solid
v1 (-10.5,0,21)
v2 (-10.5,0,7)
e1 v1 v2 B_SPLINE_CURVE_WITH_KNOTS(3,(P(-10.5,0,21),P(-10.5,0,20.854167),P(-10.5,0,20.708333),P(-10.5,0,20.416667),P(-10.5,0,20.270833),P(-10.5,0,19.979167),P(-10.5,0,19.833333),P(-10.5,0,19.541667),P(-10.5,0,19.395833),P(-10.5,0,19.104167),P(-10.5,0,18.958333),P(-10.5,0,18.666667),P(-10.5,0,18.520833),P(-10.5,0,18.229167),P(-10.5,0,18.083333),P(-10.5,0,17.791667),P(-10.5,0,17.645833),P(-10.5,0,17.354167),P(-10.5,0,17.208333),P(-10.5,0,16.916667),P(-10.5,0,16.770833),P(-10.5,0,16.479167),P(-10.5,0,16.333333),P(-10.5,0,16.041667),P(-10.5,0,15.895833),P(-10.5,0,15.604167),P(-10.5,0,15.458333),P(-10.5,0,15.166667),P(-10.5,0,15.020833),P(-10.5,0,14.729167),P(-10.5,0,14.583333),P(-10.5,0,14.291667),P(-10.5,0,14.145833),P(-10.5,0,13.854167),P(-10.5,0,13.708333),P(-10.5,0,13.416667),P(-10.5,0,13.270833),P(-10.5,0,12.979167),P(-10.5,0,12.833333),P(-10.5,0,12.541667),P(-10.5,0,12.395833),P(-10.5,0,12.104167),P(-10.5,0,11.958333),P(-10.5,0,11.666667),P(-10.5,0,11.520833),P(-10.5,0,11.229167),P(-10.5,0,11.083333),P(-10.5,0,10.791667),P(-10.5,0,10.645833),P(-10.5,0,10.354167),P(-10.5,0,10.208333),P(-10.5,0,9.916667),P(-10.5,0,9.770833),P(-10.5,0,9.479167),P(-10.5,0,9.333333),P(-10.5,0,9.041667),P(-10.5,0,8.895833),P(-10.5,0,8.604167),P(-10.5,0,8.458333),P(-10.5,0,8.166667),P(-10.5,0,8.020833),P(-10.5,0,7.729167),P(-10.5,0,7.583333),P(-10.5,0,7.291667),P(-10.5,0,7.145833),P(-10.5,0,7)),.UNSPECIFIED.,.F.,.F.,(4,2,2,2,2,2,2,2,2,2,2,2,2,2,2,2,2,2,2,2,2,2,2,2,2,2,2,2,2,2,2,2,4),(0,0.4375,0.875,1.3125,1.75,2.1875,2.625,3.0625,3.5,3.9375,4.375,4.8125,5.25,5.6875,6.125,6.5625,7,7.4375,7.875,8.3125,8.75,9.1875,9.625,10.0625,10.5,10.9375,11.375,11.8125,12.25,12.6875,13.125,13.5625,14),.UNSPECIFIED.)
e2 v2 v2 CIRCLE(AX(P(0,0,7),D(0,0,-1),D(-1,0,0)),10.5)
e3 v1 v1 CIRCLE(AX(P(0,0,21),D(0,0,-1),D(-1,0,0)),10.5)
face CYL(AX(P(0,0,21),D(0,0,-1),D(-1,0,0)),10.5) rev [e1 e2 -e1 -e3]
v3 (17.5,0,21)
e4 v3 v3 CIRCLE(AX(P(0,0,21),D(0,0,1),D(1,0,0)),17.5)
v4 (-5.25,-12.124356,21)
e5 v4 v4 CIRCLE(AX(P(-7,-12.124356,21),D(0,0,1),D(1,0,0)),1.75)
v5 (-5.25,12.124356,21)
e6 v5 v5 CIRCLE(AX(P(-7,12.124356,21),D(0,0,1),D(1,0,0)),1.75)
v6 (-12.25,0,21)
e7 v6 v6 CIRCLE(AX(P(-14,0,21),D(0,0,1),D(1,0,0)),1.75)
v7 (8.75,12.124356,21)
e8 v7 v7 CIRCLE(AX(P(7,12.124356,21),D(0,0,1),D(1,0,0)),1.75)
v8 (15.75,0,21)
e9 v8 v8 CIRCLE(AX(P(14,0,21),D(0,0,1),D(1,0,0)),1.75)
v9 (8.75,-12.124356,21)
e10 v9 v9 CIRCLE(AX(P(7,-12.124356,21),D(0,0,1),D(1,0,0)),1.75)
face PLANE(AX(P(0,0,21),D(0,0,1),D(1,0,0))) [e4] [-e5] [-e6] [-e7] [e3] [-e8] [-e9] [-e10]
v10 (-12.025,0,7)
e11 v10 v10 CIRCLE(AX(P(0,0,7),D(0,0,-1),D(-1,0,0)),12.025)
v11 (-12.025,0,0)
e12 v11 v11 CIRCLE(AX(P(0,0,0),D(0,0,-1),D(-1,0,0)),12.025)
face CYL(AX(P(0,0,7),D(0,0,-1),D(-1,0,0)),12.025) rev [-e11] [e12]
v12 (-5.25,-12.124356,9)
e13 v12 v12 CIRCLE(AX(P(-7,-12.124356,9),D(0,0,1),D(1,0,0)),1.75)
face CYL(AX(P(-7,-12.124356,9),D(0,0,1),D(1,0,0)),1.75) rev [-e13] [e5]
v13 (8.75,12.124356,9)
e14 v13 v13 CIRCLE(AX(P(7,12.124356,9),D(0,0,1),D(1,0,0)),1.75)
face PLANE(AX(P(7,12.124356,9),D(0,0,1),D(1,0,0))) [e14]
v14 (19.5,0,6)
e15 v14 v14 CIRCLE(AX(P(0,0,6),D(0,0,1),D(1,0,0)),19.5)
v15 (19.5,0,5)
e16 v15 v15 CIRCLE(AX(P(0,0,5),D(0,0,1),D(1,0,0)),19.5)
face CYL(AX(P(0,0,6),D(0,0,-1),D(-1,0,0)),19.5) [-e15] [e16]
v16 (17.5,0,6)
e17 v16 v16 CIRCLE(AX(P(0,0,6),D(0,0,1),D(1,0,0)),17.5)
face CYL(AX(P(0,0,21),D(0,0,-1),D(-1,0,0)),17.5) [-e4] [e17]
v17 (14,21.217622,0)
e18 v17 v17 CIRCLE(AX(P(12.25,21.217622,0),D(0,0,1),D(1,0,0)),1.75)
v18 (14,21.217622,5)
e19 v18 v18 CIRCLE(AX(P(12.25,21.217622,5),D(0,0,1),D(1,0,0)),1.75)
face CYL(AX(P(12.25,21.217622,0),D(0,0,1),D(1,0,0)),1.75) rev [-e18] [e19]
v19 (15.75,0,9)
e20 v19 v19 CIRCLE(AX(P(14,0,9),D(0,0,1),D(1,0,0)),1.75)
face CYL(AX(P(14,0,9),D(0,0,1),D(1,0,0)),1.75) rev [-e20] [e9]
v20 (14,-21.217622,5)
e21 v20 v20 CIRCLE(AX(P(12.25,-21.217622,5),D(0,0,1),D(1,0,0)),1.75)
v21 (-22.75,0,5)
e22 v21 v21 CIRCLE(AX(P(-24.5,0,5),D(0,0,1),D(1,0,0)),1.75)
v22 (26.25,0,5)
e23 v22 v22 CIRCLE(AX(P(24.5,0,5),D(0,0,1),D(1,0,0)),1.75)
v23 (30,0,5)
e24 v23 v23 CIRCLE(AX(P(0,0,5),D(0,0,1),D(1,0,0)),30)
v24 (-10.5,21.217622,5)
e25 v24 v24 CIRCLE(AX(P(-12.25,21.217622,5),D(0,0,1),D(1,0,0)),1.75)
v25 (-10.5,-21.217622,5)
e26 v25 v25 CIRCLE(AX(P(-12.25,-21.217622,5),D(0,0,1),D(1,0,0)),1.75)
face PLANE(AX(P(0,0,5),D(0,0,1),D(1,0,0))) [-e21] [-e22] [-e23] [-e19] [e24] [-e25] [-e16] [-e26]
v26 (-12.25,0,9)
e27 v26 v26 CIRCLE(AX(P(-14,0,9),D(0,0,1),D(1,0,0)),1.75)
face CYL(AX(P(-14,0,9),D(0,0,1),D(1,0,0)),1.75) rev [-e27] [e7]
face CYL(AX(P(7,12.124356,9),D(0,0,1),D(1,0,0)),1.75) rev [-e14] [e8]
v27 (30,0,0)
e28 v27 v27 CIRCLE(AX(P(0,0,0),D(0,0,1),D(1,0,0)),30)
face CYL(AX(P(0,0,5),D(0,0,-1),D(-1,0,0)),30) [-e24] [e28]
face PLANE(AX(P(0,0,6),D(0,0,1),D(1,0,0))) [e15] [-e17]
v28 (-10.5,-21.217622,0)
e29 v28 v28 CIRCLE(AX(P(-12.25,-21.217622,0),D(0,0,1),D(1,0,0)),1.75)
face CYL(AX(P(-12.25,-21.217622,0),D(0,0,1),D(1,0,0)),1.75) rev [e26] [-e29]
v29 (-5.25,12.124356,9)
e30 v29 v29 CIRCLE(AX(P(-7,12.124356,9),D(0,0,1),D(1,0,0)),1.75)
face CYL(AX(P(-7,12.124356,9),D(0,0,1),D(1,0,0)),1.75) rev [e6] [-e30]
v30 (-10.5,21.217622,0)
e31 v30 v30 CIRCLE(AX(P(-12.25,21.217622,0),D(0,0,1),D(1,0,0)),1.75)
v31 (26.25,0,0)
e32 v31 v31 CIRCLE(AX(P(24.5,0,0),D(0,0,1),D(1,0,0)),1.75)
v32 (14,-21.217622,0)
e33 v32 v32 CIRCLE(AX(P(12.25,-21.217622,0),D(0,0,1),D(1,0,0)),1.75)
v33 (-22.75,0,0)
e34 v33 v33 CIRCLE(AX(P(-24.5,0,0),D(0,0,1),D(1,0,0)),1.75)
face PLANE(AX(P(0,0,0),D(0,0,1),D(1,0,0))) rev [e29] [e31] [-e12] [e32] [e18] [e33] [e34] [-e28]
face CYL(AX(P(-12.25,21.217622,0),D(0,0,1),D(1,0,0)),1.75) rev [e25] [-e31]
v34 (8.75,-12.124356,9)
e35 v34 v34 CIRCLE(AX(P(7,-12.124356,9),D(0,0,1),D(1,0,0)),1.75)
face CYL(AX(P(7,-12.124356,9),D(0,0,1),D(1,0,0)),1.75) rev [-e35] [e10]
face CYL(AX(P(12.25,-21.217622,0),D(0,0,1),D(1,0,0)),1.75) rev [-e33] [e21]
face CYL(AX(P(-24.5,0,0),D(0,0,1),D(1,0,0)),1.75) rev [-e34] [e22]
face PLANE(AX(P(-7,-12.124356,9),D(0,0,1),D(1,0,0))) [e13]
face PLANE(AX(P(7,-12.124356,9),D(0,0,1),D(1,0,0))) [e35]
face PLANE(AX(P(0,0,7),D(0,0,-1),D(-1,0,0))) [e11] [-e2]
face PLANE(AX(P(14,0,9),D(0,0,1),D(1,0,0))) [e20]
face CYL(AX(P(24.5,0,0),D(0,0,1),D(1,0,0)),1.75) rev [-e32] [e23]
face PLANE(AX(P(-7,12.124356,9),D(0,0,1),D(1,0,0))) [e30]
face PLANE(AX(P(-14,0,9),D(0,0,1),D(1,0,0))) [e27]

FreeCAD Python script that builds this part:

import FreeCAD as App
import Part
import Sketcher
from FreeCAD import Vector

doc = App.newDocument("Part")
body = doc.addObject("PartDesign::Body", "Body")

# Sketch on XY plane
sketch1 = body.newObject("Sketcher::SketchObject", "Sketch")
sketch1.AttachmentSupport = (doc.getObject("XY_Plane"), [""])
sketch1.MapMode = "FlatFace"
sketch1.addGeometry(Part.Circle(Vector(0, 0, 0), Vector(0, 0, 1), 30), False)
sketch1.addConstraint(Sketcher.Constraint("Coincident", 0, 3, -1, 1))
sketch1.addConstraint(Sketcher.Constraint("Diameter", 0, 60.0))
pad1 = body.newObject("PartDesign::Pad", "Pad")
pad1.Profile = sketch1
pad1.Length = 5

# Sketch on XY plane
sketch2 = body.newObject("Sketcher::SketchObject", "Sketch001")
sketch2.AttachmentSupport = (doc.getObject("XY_Plane"), [""])
sketch2.MapMode = "FlatFace"
sketch2.AttachmentOffset = App.Placement(Vector(0, 0, 5), App.Rotation())
sketch2.addGeometry(Part.Circle(Vector(0, 0, 0), Vector(0, 0, 1), 20), False)
sketch2.addConstraint(Sketcher.Constraint("Coincident", 0, 3, -1, 1))
sketch2.addConstraint(Sketcher.Constraint("Diameter", 0, 39.0))
pad2 = body.newObject("PartDesign::Pad", "Pad001")
pad2.Profile = sketch2
pad2.Length = 1

# Sketch on XY plane
sketch3 = body.newObject("Sketcher::SketchObject", "Sketch002")
sketch3.AttachmentSupport = (doc.getObject("XY_Plane"), [""])
sketch3.MapMode = "FlatFace"
sketch3.AttachmentOffset = App.Placement(Vector(0, 0, 6), App.Rotation())
sketch3.addGeometry(Part.Circle(Vector(0, 0, 0), Vector(0, 0, 1), 18), False)
sketch3.addConstraint(Sketcher.Constraint("Coincident", 0, 3, -1, 1))
sketch3.addConstraint(Sketcher.Constraint("Diameter", 0, 35.0))
pad3 = body.newObject("PartDesign::Pad", "Pad002")
pad3.Profile = sketch3
pad3.Length = 15

# Sketch on XY plane
sketch4 = body.newObject("Sketcher::SketchObject", "Sketch003")
sketch4.AttachmentSupport = (doc.getObject("XY_Plane"), [""])
sketch4.MapMode = "FlatFace"
sketch4.addGeometry(Part.Circle(Vector(0, 0, 0), Vector(0, 0, 1), 12), False)
sketch4.addConstraint(Sketcher.Constraint("Coincident", 0, 3, -1, 1))
sketch4.addConstraint(Sketcher.Constraint("Diameter", 0, 24.05))
pocket1 = body.newObject("PartDesign::Pocket", "Pocket")
pocket1.Profile = sketch4
pocket1.Length = 7
pocket1.Reversed = True

# Sketch on XY plane
sketch5 = body.newObject("Sketcher::SketchObject", "Sketch004")
sketch5.AttachmentSupport = (doc.getObject("XY_Plane"), [""])
sketch5.MapMode = "FlatFace"
sketch5.AttachmentOffset = App.Placement(Vector(0, 0, 7), App.Rotation())
sketch5.addGeometry(Part.Circle(Vector(0, 0, 0), Vector(0, 0, 1), 10), False)
sketch5.addConstraint(Sketcher.Constraint("Coincident", 0, 3, -1, 1))
sketch5.addConstraint(Sketcher.Constraint("Diameter", 0, 21.0))
pocket2 = body.newObject("PartDesign::Pocket", "Pocket001")
pocket2.Profile = sketch5
pocket2.Type = "ThroughAll"
pocket2.Reversed = True

# Sketch on XY plane
sketch6 = body.newObject("Sketcher::SketchObject", "Sketch005")
sketch6.AttachmentSupport = (doc.getObject("XY_Plane"), [""])
sketch6.MapMode = "FlatFace"
sketch6.AttachmentOffset = App.Placement(Vector(0, 0, 5), App.Rotation())
sketch6.addGeometry(Part.Circle(Vector(24.5, 0, 0), Vector(0, 0, 1), 1.8), False)
sketch6.addGeometry(Part.Circle(Vector(12.2, -21.2, 0), Vector(0, 0, 1), 1.8), False)
sketch6.addGeometry(Part.Circle(Vector(-12.2, -21.2, 0), Vector(0, 0, 1), 1.8), False)
sketch6.addGeometry(Part.Circle(Vector(-24.5, 0, 0), Vector(0, 0, 1), 1.8), False)
sketch6.addGeometry(Part.Circle(Vector(-12.2, 21.2, 0), Vector(0, 0, 1), 1.8), False)
sketch6.addGeometry(Part.Circle(Vector(12.2, 21.2, 0), Vector(0, 0, 1), 1.8), False)
sketch6.addConstraint(Sketcher.Constraint("Equal", 0, 1))
sketch6.addConstraint(Sketcher.Constraint("Equal", 1, 2))
sketch6.addConstraint(Sketcher.Constraint("Equal", 2, 3))
sketch6.addConstraint(Sketcher.Constraint("Equal", 3, 4))
sketch6.addConstraint(Sketcher.Constraint("Equal", 4, 5))
sketch6.addConstraint(Sketcher.Constraint("Symmetric", 0, 3, 3, 3, -1, 1))
sketch6.addConstraint(Sketcher.Constraint("Symmetric", 1, 3, 4, 3, -1, 1))
sketch6.addConstraint(Sketcher.Constraint("Symmetric", 2, 3, 5, 3, -1, 1))
sketch6.addConstraint(Sketcher.Constraint("Symmetric", 1, 3, 2, 3, -2))
sketch6.addConstraint(Sketcher.Constraint("PointOnObject", 0, 3, -1))
sketch6.addConstraint(Sketcher.Constraint("Diameter", 0, 3.5))
sketch6.addConstraint(Sketcher.Constraint("DistanceX", 3, 3, 0, 3, 49.0))
sketch6.addConstraint(Sketcher.Constraint("DistanceX", 2, 3, 1, 3, 24.5))
sketch6.addConstraint(Sketcher.Constraint("DistanceY", 1, 3, -1, 1, 21.217622))
pocket3 = body.newObject("PartDesign::Pocket", "Pocket002")
pocket3.Profile = sketch6
pocket3.Type = "ThroughAll"

# Sketch on XY plane
sketch7 = body.newObject("Sketcher::SketchObject", "Sketch006")
sketch7.AttachmentSupport = (doc.getObject("XY_Plane"), [""])
sketch7.MapMode = "FlatFace"
sketch7.AttachmentOffset = App.Placement(Vector(0, 0, 21), App.Rotation())
sketch7.addGeometry(Part.Circle(Vector(14, 0, 0), Vector(0, 0, 1), 1.8), False)
sketch7.addGeometry(Part.Circle(Vector(7, -12.1, 0), Vector(0, 0, 1), 1.8), False)
sketch7.addGeometry(Part.Circle(Vector(-7, -12.1, 0), Vector(0, 0, 1), 1.8), False)
sketch7.addGeometry(Part.Circle(Vector(-14, 0, 0), Vector(0, 0, 1), 1.8), False)
sketch7.addGeometry(Part.Circle(Vector(-7, 12.1, 0), Vector(0, 0, 1), 1.8), False)
sketch7.addGeometry(Part.Circle(Vector(7, 12.1, 0), Vector(0, 0, 1), 1.8), False)
sketch7.addConstraint(Sketcher.Constraint("Equal", 0, 1))
sketch7.addConstraint(Sketcher.Constraint("Equal", 1, 2))
sketch7.addConstraint(Sketcher.Constraint("Equal", 2, 3))
sketch7.addConstraint(Sketcher.Constraint("Equal", 3, 4))
sketch7.addConstraint(Sketcher.Constraint("Equal", 4, 5))
sketch7.addConstraint(Sketcher.Constraint("Symmetric", 0, 3, 3, 3, -1, 1))
sketch7.addConstraint(Sketcher.Constraint("Symmetric", 1, 3, 4, 3, -1, 1))
sketch7.addConstraint(Sketcher.Constraint("Symmetric", 2, 3, 5, 3, -1, 1))
sketch7.addConstraint(Sketcher.Constraint("Symmetric", 1, 3, 2, 3, -2))
sketch7.addConstraint(Sketcher.Constraint("PointOnObject", 0, 3, -1))
sketch7.addConstraint(Sketcher.Constraint("Diameter", 0, 3.5))
sketch7.addConstraint(Sketcher.Constraint("DistanceX", -1, 1, 0, 3, 14.0))
sketch7.addConstraint(Sketcher.Constraint("DistanceX", -1, 1, 1, 3, 7.0))
sketch7.addConstraint(Sketcher.Constraint("DistanceY", 2, 3, 4, 3, 24.248711))
pocket4 = body.newObject("PartDesign::Pocket", "Pocket003")
pocket4.Profile = sketch7
pocket4.Length = 12

doc.recompute()
